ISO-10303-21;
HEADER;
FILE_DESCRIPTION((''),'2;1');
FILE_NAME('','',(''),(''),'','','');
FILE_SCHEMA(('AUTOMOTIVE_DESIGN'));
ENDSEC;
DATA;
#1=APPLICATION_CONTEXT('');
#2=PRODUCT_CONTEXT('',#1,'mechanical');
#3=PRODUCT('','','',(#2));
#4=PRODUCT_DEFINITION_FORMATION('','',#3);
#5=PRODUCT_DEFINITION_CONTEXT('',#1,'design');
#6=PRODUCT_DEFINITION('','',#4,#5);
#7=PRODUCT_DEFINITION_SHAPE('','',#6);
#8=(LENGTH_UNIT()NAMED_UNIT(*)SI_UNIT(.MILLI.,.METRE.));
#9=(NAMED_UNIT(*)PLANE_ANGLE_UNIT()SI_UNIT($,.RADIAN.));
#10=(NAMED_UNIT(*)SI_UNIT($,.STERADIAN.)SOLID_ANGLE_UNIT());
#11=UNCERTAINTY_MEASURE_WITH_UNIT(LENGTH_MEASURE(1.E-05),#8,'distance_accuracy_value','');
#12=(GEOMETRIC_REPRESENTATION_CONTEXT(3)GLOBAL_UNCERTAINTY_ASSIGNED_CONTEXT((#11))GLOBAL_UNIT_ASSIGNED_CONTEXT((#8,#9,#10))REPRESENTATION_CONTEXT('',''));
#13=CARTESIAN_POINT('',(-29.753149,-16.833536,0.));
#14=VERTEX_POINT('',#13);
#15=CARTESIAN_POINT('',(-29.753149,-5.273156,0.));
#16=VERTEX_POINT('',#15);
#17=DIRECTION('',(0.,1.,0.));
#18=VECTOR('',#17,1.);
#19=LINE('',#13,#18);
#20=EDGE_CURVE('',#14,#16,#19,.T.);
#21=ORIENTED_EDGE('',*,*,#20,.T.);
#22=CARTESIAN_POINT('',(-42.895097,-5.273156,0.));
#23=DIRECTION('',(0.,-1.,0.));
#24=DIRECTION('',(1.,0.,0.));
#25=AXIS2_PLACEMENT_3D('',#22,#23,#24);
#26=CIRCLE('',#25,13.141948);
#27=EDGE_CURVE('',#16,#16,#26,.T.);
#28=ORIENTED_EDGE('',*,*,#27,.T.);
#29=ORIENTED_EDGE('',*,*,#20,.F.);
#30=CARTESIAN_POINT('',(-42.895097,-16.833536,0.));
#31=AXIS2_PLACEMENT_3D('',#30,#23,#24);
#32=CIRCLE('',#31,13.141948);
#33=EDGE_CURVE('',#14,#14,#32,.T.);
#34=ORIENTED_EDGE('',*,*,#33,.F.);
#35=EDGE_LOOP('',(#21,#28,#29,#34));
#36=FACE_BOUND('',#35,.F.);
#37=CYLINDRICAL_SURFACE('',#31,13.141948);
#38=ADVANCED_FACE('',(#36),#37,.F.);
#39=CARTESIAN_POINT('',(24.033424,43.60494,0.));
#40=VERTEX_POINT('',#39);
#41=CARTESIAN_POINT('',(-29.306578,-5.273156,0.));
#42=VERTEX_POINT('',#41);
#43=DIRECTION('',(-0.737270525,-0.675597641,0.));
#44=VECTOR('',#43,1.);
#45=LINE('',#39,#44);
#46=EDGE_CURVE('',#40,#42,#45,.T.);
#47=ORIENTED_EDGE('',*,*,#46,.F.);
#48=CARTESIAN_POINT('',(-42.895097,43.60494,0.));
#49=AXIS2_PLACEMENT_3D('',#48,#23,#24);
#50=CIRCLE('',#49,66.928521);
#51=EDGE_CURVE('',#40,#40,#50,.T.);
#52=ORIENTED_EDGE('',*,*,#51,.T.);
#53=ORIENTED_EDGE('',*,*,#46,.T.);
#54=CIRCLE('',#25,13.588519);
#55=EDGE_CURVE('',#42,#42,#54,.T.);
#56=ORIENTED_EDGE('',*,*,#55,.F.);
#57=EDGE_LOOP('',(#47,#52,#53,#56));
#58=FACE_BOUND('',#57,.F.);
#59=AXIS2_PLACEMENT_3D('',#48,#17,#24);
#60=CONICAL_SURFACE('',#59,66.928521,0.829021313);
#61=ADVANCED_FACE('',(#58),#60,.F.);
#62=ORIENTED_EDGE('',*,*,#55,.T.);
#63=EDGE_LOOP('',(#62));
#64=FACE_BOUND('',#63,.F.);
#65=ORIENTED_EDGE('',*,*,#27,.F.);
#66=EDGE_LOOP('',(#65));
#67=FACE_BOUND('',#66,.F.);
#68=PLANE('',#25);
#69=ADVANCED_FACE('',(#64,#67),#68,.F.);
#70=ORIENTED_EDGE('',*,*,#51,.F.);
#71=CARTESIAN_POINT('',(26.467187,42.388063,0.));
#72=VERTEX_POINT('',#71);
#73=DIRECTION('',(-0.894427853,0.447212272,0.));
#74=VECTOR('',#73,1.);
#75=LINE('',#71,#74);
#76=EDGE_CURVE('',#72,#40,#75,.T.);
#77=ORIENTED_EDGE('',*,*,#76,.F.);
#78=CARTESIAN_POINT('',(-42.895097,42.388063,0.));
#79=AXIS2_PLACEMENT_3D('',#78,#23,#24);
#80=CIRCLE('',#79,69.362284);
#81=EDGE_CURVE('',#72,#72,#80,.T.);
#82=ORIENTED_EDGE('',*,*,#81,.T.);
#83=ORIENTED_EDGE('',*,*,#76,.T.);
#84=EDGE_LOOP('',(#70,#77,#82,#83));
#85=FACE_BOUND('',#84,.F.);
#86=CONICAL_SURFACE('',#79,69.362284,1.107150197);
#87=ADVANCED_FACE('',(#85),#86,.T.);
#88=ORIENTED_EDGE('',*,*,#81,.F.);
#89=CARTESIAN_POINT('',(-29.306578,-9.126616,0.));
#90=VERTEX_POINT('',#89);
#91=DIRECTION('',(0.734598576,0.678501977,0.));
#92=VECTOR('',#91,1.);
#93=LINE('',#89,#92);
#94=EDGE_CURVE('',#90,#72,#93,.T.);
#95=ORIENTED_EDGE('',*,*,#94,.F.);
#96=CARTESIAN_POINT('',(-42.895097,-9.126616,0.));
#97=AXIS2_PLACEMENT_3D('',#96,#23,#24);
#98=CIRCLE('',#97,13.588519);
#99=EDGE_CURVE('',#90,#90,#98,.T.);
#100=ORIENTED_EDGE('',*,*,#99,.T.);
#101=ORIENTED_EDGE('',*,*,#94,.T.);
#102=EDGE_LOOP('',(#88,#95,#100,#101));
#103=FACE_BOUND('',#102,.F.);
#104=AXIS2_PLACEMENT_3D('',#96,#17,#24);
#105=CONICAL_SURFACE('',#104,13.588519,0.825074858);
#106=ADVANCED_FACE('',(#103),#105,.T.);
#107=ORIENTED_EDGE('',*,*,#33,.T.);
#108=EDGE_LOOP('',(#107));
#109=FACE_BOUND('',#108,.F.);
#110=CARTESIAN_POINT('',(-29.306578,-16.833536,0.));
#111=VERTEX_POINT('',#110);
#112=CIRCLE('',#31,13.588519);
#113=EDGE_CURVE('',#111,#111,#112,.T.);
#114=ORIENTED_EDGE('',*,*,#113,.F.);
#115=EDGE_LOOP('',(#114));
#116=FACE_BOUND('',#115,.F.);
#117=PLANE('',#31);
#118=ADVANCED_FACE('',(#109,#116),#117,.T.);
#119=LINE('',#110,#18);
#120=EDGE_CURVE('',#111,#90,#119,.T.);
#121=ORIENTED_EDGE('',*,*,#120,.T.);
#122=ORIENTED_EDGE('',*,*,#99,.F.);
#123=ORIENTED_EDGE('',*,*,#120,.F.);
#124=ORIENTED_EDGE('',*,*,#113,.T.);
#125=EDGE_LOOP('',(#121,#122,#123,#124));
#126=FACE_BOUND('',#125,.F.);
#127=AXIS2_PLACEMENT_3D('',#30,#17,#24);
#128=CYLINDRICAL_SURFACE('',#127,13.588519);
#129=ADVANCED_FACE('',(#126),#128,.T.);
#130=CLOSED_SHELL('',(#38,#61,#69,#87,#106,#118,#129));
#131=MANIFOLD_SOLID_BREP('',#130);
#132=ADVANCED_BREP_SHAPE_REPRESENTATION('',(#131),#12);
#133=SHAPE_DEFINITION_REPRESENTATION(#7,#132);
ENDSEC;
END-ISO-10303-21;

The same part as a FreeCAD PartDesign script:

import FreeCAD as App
import Part
import Sketcher
from FreeCAD import Vector
Q = App.Units.Quantity


def add_polygon(sketch, points):
    """Adds a closed chain of lines whose ends are joined by coincident constraints."""
    first, n = sketch.GeometryCount, len(points)
    for a, b in zip(points, points[1:] + points[:1]):
        sketch.addGeometry(Part.LineSegment(App.Vector(*a, 0), App.Vector(*b, 0)), False)
    for i in range(n):
        sketch.addConstraint(Sketcher.Constraint("Coincident", first + i, 2, first + (i + 1) % n, 1))

doc = App.newDocument("Part")
body = doc.addObject("PartDesign::Body", "Body")

# Sketch on XY plane
sketch1 = body.newObject("Sketcher::SketchObject", "Sketch")
sketch1.AttachmentSupport = (doc.getObject("XY_Plane"), [""])
sketch1.MapMode = "FlatFace"
add_polygon(sketch1, [(26.5, 42.4), (24, 43.6), (-29.3, -5.3), (-42.9, -5.3), (-42.9, -16.8), (-29.3, -16.8), (-29.3, -9.1)])  # lines 0-6
sketch1.addGeometry(Part.LineSegment(Vector(-42.9, 43.6, 0), Vector(-42.9, -16.8, 0)), True)  # axis
sketch1.addConstraint(Sketcher.Constraint("Horizontal", 2))
sketch1.addConstraint(Sketcher.Constraint("Vertical", 3))
sketch1.addConstraint(Sketcher.Constraint("Horizontal", 4))
sketch1.addConstraint(Sketcher.Constraint("Vertical", 5))
sketch1.addConstraint(Sketcher.Constraint("Vertical", 7))
sketch1.addConstraint(Sketcher.Constraint("Coincident", 7, 2, 3, 2))
sketch1.addConstraint(Sketcher.Constraint("Horizontal", 0, 2, 7, 1))
sketch1.addConstraint(Sketcher.Constraint("Vertical", 1, 2, 4, 2))
sketch1.addConstraint(Sketcher.Constraint("DistanceX", 1, 2, 0, 2, Q("2.1000001 in")))
sketch1.addConstraint(Sketcher.Constraint("DistanceX", 2, 2, 2, 1, Q("13.588519 mm")))
sketch1.addConstraint(Sketcher.Constraint("DistanceY", 3, 2, 3, 1, Q("11.56038 mm")))
sketch1.addConstraint(Sketcher.Constraint("DistanceY", 5, 1, 5, 2, Q("7.70692 mm")))
sketch1.addConstraint(Sketcher.Constraint("DistanceY", 4, 2, 6, 2, Q("59.221599 mm")))
sketch1.addConstraint(Sketcher.Constraint("Distance", 6, Q("75.92414 mm")))
sketch1.addConstraint(Sketcher.Constraint("DistanceY", 7, 2, 7, 1, Q("60.438476 mm")))
sketch1.addConstraint(Sketcher.Constraint("DistanceY", -1, 1, 0, 2, Q("43.60494 mm")))
sketch1.addConstraint(Sketcher.Constraint("DistanceX", -1, 1, 0, 2, Q("24.033424 mm")))
revolution = body.newObject("PartDesign::Revolution", "Revolution")
revolution.Profile = sketch1
revolution.ReferenceAxis = (sketch1, ["Axis0"])
revolution.Angle = 360

# Sketch on XZ plane
sketch2 = body.newObject("Sketcher::SketchObject", "Sketch001")
sketch2.AttachmentSupport = (doc.getObject("XZ_Plane"), [""])
sketch2.MapMode = "FlatFace"
sketch2.AttachmentOffset = App.Placement(Vector(0, 0, 16.833536), App.Rotation())
sketch2.addGeometry(Part.Circle(Vector(-43, 0, 0), Vector(0, 0, 1), 13), False)
sketch2.addConstraint(Sketcher.Constraint("PointOnObject", 0, 3, -1))
sketch2.addConstraint(Sketcher.Constraint("Diameter", 0, Q("26.283896 mm")))
sketch2.addConstraint(Sketcher.Constraint("DistanceX", 0, 3, -1, 1, Q("42.895097 mm")))
pocket1 = body.newObject("PartDesign::Pocket", "Pocket")
pocket1.Profile = sketch2
pocket1.Length = Q("1 in")

doc.recompute()
